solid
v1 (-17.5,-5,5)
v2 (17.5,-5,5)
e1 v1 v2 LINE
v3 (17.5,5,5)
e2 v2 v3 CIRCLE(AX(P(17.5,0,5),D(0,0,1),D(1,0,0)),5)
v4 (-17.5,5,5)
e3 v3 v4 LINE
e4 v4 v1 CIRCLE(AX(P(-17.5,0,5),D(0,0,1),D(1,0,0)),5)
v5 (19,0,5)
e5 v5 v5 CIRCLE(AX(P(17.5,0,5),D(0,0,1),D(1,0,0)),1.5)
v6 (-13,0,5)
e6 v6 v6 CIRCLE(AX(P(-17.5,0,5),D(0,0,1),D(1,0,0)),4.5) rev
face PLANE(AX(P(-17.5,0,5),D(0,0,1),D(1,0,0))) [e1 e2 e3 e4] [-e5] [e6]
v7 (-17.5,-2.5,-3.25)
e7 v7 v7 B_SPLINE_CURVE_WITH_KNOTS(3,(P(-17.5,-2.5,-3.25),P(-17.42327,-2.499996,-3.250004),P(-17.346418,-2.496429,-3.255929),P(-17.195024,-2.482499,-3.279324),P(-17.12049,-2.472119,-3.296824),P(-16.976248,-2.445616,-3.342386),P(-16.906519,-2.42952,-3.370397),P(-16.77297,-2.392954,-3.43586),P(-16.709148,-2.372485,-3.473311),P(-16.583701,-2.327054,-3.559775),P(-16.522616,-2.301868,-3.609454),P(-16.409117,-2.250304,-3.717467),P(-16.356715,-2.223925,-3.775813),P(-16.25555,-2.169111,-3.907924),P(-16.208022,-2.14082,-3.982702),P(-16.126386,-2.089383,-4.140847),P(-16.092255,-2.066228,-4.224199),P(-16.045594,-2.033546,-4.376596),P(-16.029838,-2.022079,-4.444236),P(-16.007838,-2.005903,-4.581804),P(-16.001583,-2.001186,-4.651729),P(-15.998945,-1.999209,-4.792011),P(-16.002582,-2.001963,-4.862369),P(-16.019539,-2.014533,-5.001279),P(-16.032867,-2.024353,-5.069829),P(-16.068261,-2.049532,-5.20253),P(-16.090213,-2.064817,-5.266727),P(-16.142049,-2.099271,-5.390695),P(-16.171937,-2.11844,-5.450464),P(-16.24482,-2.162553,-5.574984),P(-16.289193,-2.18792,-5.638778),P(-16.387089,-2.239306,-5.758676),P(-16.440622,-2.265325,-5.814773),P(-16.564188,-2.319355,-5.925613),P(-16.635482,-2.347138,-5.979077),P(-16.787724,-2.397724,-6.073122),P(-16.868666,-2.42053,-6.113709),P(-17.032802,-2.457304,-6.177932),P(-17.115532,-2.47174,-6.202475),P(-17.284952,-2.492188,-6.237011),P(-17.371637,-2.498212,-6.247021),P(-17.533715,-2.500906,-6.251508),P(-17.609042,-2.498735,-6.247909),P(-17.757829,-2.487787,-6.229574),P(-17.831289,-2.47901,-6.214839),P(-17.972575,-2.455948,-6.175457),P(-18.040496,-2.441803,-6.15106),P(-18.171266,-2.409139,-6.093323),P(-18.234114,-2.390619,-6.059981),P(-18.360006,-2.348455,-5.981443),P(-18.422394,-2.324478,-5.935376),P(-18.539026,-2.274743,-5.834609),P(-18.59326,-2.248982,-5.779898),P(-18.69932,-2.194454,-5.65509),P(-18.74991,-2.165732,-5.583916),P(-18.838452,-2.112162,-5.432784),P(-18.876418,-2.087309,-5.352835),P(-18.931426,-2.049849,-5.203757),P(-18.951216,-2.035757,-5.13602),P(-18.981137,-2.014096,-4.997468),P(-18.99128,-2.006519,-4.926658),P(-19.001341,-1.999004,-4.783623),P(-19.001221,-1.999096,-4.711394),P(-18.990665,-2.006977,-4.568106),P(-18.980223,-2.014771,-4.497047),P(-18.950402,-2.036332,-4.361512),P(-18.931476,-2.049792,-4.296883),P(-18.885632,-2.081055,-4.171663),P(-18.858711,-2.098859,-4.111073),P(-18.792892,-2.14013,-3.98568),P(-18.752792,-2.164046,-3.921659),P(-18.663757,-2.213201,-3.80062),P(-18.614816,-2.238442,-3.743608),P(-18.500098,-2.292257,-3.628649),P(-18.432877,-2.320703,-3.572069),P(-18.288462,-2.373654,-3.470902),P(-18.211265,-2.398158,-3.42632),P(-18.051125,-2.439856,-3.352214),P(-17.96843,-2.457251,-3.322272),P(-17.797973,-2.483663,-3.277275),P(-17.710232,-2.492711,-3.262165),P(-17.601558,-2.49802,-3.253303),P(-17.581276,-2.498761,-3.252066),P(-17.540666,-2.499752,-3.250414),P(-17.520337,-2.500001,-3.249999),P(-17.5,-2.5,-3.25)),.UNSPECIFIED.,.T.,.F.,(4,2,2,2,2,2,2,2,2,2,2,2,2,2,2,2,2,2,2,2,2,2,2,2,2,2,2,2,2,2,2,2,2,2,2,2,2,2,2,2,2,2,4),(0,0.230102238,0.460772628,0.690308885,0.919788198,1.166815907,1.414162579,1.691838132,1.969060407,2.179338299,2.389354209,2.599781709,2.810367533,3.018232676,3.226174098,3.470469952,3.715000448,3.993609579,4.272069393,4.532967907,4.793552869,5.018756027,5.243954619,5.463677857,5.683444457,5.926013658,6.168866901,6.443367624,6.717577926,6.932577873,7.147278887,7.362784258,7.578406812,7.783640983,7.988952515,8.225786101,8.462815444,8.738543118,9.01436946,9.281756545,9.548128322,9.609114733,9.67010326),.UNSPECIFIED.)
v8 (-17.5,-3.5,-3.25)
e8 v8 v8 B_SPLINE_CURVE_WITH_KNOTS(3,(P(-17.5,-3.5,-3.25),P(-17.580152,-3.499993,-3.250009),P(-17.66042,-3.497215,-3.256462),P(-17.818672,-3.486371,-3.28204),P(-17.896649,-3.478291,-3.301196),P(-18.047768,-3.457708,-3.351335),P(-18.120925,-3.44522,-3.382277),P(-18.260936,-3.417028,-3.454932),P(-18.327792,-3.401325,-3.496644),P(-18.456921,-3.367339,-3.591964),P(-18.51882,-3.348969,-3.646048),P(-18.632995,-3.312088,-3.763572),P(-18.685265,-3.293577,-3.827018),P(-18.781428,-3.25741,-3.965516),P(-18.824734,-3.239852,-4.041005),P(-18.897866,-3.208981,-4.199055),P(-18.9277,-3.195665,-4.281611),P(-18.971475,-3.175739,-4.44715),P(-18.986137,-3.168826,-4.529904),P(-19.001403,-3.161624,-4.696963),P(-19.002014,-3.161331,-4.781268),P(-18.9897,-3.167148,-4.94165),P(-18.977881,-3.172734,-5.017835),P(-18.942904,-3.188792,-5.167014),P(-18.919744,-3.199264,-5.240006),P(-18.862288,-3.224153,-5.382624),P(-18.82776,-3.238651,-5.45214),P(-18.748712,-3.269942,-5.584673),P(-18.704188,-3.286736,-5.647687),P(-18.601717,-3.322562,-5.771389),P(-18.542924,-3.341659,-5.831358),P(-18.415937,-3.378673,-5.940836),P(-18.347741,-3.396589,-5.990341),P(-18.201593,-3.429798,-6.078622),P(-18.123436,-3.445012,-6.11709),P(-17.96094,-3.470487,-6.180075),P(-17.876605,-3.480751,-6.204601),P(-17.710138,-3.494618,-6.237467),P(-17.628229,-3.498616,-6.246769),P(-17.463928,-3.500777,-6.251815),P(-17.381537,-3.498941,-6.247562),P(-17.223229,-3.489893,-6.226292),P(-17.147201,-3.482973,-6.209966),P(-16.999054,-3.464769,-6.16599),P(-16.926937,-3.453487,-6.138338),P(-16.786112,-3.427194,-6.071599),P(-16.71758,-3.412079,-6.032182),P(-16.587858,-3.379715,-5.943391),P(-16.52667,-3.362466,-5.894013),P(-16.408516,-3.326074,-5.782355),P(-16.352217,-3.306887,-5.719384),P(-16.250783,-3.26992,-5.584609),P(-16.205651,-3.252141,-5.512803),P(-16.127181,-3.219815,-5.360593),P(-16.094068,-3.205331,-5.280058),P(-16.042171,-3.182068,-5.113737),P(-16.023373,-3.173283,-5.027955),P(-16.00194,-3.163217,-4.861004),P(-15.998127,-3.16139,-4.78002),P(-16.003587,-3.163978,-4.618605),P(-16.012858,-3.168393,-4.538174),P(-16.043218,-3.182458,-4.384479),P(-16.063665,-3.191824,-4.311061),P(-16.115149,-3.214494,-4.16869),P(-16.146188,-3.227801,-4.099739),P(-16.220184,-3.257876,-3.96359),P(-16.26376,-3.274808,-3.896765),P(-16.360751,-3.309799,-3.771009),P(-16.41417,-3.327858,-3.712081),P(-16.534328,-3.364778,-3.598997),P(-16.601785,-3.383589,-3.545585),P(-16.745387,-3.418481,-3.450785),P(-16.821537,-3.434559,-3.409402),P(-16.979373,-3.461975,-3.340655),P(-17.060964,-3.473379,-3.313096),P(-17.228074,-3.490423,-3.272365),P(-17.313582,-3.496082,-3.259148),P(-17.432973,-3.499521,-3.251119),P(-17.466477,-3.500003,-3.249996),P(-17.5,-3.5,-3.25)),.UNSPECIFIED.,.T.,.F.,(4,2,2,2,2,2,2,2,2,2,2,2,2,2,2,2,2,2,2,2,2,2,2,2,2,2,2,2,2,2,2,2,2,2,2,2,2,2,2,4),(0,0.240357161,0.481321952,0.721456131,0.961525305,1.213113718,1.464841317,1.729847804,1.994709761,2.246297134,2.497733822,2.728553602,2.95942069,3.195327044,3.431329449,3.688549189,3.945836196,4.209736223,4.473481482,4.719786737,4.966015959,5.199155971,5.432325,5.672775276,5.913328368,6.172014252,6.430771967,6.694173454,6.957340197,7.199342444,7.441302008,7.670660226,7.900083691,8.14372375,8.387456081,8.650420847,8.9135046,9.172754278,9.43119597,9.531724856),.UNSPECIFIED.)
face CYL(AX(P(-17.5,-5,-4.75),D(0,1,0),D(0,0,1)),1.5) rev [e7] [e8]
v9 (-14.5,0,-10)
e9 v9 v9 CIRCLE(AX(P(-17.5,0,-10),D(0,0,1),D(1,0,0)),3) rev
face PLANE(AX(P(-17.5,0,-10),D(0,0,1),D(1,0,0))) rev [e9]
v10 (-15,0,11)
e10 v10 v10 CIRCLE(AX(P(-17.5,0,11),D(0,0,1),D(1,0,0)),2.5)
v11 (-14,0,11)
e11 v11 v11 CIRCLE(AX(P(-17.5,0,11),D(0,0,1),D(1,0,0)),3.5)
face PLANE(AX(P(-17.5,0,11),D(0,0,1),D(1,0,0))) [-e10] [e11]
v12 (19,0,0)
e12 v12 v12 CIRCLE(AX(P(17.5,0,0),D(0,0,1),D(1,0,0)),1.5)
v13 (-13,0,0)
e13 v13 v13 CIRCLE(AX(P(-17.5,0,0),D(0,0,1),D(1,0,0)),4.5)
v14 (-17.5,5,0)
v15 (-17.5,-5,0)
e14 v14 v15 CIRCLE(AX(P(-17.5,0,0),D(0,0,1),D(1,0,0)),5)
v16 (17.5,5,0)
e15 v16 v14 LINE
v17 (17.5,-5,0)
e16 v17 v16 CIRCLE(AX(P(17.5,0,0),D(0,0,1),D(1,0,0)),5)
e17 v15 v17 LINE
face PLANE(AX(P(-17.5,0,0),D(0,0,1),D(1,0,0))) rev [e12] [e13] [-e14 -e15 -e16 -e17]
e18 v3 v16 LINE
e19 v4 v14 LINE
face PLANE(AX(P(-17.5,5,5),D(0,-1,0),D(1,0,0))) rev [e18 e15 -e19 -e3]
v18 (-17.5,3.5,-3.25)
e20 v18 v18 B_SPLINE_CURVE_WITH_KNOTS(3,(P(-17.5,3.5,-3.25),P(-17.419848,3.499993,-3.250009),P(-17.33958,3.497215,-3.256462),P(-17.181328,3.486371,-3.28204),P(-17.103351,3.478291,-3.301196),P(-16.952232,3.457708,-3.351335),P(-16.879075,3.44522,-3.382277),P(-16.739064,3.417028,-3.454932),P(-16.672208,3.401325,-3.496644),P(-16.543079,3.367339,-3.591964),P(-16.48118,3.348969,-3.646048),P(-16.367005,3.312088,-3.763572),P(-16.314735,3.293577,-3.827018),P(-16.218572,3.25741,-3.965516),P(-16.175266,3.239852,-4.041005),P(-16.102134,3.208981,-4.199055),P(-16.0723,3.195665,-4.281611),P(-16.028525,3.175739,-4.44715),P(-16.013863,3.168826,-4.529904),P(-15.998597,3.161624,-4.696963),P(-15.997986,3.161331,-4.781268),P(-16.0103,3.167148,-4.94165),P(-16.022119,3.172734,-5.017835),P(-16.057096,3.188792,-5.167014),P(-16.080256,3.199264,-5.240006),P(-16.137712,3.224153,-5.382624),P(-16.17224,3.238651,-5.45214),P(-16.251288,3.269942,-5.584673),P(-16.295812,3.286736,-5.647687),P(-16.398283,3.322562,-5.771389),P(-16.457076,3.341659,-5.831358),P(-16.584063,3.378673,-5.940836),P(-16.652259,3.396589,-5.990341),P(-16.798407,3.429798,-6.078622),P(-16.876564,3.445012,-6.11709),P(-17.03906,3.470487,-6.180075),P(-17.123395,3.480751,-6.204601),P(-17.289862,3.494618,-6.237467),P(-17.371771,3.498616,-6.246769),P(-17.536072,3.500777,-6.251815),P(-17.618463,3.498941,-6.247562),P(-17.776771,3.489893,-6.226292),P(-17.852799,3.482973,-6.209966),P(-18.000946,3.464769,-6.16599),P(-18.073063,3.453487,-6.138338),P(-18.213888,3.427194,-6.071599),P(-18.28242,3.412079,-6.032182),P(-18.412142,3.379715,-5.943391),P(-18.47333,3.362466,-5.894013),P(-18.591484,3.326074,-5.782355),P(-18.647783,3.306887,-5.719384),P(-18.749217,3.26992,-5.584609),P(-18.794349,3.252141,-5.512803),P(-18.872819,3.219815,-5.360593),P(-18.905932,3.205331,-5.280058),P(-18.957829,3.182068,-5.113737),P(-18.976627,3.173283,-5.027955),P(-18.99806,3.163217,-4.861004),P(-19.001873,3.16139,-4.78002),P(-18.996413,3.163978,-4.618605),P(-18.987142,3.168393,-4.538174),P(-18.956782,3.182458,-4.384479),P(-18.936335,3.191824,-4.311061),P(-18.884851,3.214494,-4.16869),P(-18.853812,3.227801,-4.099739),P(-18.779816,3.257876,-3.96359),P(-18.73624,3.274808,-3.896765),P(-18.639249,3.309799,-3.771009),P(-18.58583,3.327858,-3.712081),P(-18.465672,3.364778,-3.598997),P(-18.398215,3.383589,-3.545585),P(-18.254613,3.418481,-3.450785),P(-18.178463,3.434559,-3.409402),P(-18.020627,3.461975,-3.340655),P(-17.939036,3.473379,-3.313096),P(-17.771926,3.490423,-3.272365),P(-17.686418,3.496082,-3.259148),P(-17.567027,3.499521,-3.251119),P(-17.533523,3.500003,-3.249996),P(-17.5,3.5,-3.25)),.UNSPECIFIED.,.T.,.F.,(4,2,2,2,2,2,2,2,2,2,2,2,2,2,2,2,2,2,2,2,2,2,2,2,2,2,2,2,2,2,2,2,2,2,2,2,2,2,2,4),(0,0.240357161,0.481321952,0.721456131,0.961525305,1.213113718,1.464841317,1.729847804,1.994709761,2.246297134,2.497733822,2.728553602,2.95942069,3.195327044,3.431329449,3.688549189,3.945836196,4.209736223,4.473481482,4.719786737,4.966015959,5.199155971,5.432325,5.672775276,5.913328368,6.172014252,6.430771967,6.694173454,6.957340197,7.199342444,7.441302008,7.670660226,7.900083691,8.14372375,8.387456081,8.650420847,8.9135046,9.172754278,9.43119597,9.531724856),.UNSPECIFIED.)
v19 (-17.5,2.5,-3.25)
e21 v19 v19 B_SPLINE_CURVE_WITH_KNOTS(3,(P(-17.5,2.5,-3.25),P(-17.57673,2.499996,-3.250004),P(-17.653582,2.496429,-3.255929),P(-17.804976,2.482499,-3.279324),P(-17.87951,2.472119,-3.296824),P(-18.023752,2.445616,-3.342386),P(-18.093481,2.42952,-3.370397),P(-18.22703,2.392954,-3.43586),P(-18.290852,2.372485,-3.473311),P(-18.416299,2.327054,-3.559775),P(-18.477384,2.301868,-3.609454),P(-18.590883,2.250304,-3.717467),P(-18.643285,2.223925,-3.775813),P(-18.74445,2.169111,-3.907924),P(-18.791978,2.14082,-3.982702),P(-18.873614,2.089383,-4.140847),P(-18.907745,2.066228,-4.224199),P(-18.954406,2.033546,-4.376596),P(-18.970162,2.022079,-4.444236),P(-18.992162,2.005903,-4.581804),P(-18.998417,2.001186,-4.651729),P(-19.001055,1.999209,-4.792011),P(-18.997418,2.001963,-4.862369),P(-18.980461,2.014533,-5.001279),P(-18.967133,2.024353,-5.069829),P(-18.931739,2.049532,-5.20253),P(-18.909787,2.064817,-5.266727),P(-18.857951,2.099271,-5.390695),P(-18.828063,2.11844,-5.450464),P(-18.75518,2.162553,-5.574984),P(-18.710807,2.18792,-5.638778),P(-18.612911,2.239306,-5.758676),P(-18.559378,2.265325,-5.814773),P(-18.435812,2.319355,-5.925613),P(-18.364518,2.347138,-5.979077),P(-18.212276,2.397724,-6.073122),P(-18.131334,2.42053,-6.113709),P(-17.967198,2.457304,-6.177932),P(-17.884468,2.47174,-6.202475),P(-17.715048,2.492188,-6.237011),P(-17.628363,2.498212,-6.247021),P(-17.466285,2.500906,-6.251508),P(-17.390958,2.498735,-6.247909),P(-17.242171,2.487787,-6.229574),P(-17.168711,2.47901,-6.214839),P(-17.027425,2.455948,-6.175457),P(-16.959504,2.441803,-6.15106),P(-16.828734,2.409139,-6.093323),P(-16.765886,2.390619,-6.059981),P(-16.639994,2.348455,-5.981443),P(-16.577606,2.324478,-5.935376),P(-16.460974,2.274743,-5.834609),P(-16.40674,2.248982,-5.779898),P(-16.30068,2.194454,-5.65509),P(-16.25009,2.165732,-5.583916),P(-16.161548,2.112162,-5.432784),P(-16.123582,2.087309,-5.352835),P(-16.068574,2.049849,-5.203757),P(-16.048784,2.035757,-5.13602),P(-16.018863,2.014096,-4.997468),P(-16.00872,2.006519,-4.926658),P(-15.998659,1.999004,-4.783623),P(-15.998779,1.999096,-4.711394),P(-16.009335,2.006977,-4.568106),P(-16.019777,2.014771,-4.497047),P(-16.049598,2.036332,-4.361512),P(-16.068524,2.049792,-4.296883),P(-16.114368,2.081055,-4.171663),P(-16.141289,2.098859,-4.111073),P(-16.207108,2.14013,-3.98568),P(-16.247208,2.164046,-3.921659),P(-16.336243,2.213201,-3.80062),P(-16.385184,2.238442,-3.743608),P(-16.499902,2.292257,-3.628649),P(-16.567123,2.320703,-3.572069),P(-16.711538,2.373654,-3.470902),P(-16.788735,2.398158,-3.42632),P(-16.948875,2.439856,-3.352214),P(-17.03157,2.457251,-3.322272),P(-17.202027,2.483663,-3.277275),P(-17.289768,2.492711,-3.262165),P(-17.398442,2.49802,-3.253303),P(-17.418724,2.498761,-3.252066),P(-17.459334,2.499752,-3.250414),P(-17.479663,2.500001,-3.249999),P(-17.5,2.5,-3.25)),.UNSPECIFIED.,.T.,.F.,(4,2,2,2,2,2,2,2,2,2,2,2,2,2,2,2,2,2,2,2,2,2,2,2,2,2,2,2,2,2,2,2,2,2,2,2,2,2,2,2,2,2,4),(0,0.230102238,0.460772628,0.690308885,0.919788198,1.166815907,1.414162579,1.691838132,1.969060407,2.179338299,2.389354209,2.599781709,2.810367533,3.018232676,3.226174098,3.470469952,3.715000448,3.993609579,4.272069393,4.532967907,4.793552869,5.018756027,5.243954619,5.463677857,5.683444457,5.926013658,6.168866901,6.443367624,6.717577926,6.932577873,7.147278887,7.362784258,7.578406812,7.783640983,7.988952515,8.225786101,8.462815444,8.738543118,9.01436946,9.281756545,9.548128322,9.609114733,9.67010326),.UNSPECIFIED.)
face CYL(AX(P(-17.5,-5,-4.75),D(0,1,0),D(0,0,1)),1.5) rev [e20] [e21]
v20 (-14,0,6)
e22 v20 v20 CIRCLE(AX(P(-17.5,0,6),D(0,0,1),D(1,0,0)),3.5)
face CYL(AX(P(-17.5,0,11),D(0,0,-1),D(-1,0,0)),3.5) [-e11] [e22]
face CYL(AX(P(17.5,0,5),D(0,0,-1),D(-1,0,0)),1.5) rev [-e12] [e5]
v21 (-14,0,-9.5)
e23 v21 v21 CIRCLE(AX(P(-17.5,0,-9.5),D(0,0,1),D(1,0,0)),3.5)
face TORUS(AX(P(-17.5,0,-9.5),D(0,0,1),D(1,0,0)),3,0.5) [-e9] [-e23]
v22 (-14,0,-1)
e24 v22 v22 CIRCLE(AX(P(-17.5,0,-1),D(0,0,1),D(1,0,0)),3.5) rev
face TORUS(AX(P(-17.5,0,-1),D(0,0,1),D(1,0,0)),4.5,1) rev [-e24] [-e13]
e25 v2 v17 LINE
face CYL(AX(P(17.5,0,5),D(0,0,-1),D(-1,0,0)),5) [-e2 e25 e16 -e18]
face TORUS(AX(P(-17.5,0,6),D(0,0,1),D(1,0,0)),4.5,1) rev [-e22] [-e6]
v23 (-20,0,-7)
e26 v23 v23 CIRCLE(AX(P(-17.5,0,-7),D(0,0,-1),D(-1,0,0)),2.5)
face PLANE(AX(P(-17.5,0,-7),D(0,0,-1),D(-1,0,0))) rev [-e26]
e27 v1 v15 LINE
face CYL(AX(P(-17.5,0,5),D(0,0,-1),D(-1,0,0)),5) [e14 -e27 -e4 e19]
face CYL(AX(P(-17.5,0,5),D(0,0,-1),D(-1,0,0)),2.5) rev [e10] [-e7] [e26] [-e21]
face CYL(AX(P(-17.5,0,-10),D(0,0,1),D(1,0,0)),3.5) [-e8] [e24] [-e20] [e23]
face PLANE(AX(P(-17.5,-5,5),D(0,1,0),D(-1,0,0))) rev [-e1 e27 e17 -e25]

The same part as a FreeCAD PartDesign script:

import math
import FreeCAD as App
import Part
import Sketcher
from FreeCAD import Vector
Q = App.Units.Quantity


def edges_at(feature, points):
    """Names of the edges that pass closest to the given points."""
    edges = feature.Shape.Edges
    near = lambda p: min(range(len(edges)), key=lambda i: edges[i].distToShape(Part.Vertex(*p))[0])
    return sorted({f"Edge{near(p) + 1}" for p in points})

doc = App.newDocument("Part")
body = doc.addObject("PartDesign::Body", "Body")

sketch1 = doc.addObject("Sketcher::SketchObject", "Sketch")
body.addObject(sketch1)
sketch1.AttachmentSupport = (doc.XY_Plane, [""])
sketch1.MapMode = "FlatFace"
sketch1.addGeometry(Part.LineSegment(Vector(17.5, 5, 0), Vector(-17.5, 5, 0)), False)
sketch1.addGeometry(Part.ArcOfCircle(Part.Circle(Vector(-17.5, 0, 0), Vector(0, 0, 1), 5), math.radians(90), math.radians(270)), False)
sketch1.addGeometry(Part.LineSegment(Vector(-17.5, -5, 0), Vector(17.5, -5, 0)), False)
sketch1.addGeometry(Part.ArcOfCircle(Part.Circle(Vector(17.5, 0, 0), Vector(0, 0, 1), 5), math.radians(-90), math.radians(90)), False)
sketch1.addGeometry(Part.Circle(Vector(17.5, 0, 0), Vector(0, 0, 1), 1.5), False)
sketch1.addGeometry(Part.Circle(Vector(-17.5, 0, 0), Vector(0, 0, 1), 2.5), False)
sketch1.addConstraint(Sketcher.Constraint("Tangent", 0, 2, 1, 1))
sketch1.addConstraint(Sketcher.Constraint("Tangent", 1, 2, 2, 1))
sketch1.addConstraint(Sketcher.Constraint("Tangent", 2, 2, 3, 1))
sketch1.addConstraint(Sketcher.Constraint("Tangent", 3, 2, 0, 1))
sketch1.addConstraint(Sketcher.Constraint("Horizontal", 0))
sketch1.addConstraint(Sketcher.Constraint("Horizontal", 2))
sketch1.addConstraint(Sketcher.Constraint("Coincident", 4, 3, 3, 3))
sketch1.addConstraint(Sketcher.Constraint("Coincident", 5, 3, 1, 3))
sketch1.addConstraint(Sketcher.Constraint("Symmetric", 1, 3, 3, 3, -1, 1))
sketch1.addConstraint(Sketcher.Constraint("Diameter", 4, Q("3 mm")))
sketch1.addConstraint(Sketcher.Constraint("Diameter", 5, Q("5 mm")))
sketch1.addConstraint(Sketcher.Constraint("Radius", 1, Q("5 mm")))
sketch1.addConstraint(Sketcher.Constraint("DistanceX", 0, 2, 0, 1, Q("35 mm")))
pad1 = doc.addObject("PartDesign::Pad", "Pad")
body.addObject(pad1)
pad1.Profile = sketch1
pad1.Length = 5

sketch2 = doc.addObject("Sketcher::SketchObject", "Sketch001")
body.addObject(sketch2)
sketch2.AttachmentSupport = (doc.XY_Plane, [""])
sketch2.MapMode = "FlatFace"
sketch2.AttachmentOffset = App.Placement(Vector(0, 0, -10), App.Rotation())
sketch2.addGeometry(Part.Circle(Vector(-17.5, 0, 0), Vector(0, 0, 1), 3.5), False)
sketch2.addGeometry(Part.Circle(Vector(-17.5, 0, 0), Vector(0, 0, 1), 2.5), False)
sketch2.addConstraint(Sketcher.Constraint("Coincident", 1, 3, 0, 3))
sketch2.addConstraint(Sketcher.Constraint("PointOnObject", 0, 3, -1))
sketch2.addConstraint(Sketcher.Constraint("Diameter", 0, Q("7 mm")))
sketch2.addConstraint(Sketcher.Constraint("Diameter", 1, Q("5 mm")))
sketch2.addConstraint(Sketcher.Constraint("DistanceX", 0, 3, -1, 1, Q("17.5 mm")))
pad2 = doc.addObject("PartDesign::Pad", "Pad001")
body.addObject(pad2)
pad2.Profile = sketch2
pad2.Length = 10

sketch3 = doc.addObject("Sketcher::SketchObject", "Sketch002")
body.addObject(sketch3)
sketch3.AttachmentSupport = (doc.XY_Plane, [""])
sketch3.MapMode = "FlatFace"
sketch3.AttachmentOffset = App.Placement(Vector(0, 0, -10), App.Rotation())
sketch3.addGeometry(Part.Circle(Vector(-17.5, 0, 0), Vector(0, 0, 1), 3.5), False)
sketch3.addConstraint(Sketcher.Constraint("PointOnObject", 0, 3, -1))
sketch3.addConstraint(Sketcher.Constraint("Diameter", 0, Q("7 mm")))
sketch3.addConstraint(Sketcher.Constraint("DistanceX", 0, 3, -1, 1, Q("17.5 mm")))
pad3 = doc.addObject("PartDesign::Pad", "Pad002")
body.addObject(pad3)
pad3.Profile = sketch3
pad3.Length = 3
doc.recompute()

fillet = doc.addObject("PartDesign::Fillet", "Fillet")
body.addObject(fillet)
fillet.Base = (pad3, edges_at(pad3, [(-21, 0, -10)]))
fillet.Radius = 0.5

sketch4 = doc.addObject("Sketcher::SketchObject", "Sketch003")
body.addObject(sketch4)
sketch4.AttachmentSupport = (doc.XZ_Plane, [""])
sketch4.MapMode = "FlatFace"
sketch4.addGeometry(Part.Circle(Vector(-17.5, -4.8, 0), Vector(0, 0, 1), 1.5), False)
sketch4.addConstraint(Sketcher.Constraint("Diameter", 0, Q("3 mm")))
sketch4.addConstraint(Sketcher.Constraint("DistanceX", 0, 3, -1, 1, Q("17.5 mm")))
sketch4.addConstraint(Sketcher.Constraint("DistanceY", 0, 3, -1, 1, Q("4.75 mm")))
pocket1 = doc.addObject("PartDesign::Pocket", "Pocket")
body.addObject(pocket1)
pocket1.Profile = sketch4
pocket1.Type = "ThroughAll"
pocket1.Midplane = True

sketch5 = doc.addObject("Sketcher::SketchObject", "Sketch004")
body.addObject(sketch5)
sketch5.AttachmentSupport = (doc.XY_Plane, [""])
sketch5.MapMode = "FlatFace"
sketch5.AttachmentOffset = App.Placement(Vector(0, 0, 5), App.Rotation())
sketch5.addGeometry(Part.Circle(Vector(-17.5, 0, 0), Vector(0, 0, 1), 3.5), False)
sketch5.addGeometry(Part.Circle(Vector(-17.5, 0, 0), Vector(0, 0, 1), 2.5), False)
sketch5.addConstraint(Sketcher.Constraint("Coincident", 1, 3, 0, 3))
sketch5.addConstraint(Sketcher.Constraint("PointOnObject", 0, 3, -1))
sketch5.addConstraint(Sketcher.Constraint("Diameter", 0, Q("7 mm")))
sketch5.addConstraint(Sketcher.Constraint("Diameter", 1, Q("5 mm")))
sketch5.addConstraint(Sketcher.Constraint("DistanceX", 0, 3, -1, 1, Q("17.5 mm")))
pad4 = doc.addObject("PartDesign::Pad", "Pad003")
body.addObject(pad4)
pad4.Profile = sketch5
pad4.Length = 6
doc.recompute()

fillet2 = doc.addObject("PartDesign::Fillet", "Fillet001")
body.addObject(fillet2)
fillet2.Base = (pad4, edges_at(pad4, [(-21, 0, 5)]))
fillet2.Radius = 1
doc.recompute()

fillet3 = doc.addObject("PartDesign::Fillet", "Fillet002")
body.addObject(fillet3)
fillet3.Base = (fillet2, edges_at(fillet2, [(-21, 0, 0)]))
fillet3.Radius = 1

doc.recompute()
